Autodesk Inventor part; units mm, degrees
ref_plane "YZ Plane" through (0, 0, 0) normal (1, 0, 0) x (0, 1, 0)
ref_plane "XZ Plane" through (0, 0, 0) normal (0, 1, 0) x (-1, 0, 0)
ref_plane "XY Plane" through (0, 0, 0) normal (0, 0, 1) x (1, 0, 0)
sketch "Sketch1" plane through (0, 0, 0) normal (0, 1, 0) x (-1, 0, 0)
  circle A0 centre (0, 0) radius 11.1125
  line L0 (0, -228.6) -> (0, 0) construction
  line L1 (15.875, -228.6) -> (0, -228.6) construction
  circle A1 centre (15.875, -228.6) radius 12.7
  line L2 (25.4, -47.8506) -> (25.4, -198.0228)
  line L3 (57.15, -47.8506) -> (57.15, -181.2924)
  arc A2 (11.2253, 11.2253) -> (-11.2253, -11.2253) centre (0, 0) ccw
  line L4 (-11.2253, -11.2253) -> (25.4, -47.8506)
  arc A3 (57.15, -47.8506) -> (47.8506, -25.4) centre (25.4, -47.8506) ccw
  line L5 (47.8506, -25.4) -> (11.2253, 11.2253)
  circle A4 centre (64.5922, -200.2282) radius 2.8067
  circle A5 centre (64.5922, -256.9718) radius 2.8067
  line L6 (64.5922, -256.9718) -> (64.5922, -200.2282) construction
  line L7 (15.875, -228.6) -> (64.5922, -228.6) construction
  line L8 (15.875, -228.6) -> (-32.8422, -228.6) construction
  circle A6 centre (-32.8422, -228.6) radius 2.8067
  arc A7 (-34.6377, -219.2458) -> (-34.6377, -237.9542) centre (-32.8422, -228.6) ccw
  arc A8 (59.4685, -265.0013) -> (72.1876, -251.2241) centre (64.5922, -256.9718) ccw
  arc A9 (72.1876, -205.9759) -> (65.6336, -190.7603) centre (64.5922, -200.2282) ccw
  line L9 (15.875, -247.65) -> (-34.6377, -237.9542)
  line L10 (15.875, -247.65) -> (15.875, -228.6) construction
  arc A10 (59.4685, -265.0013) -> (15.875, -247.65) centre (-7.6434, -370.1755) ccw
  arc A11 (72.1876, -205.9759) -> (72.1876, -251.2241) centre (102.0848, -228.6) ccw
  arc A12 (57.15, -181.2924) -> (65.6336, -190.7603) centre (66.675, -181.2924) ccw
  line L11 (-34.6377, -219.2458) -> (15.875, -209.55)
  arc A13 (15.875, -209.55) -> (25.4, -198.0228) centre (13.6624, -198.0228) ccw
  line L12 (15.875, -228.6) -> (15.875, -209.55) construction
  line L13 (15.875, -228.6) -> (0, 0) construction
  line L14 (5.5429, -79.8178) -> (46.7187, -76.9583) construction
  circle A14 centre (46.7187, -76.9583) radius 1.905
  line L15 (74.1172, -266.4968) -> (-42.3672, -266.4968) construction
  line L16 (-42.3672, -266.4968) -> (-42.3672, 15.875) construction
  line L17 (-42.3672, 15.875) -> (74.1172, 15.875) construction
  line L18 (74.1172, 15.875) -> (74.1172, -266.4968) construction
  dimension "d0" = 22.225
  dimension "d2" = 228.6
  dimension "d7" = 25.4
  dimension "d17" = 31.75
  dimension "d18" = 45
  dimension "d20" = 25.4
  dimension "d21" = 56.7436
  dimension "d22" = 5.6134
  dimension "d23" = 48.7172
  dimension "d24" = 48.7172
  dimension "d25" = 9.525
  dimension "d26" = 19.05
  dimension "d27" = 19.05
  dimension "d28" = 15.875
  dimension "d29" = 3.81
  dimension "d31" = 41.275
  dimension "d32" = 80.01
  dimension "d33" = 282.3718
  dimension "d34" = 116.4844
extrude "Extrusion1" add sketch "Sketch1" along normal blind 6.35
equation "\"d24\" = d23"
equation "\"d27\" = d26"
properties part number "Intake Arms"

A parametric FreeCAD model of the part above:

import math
import FreeCAD as App
import Part
import Sketcher

V = App.Vector
Q = App.Units.Quantity

doc = App.newDocument("Part")
params = doc.addObject("Spreadsheet::Sheet", "Params")
for row, (alias, value) in enumerate([
    ("sketch1_diameter", "1 in"),
    ("sketch1_diameter2", "0.15 in"),
    ("sketch1_radius", "1.25 in"),
    ("sketch1_diameter3", "0.221 in"),
    ("sketch1_diameter4", "0.875 in"),
    ("pad1_length", "0.25 in"),
], start=1):
    params.set(f"A{row}", alias)
    params.set(f"B{row}", "=" + value)
    params.setAlias(f"B{row}", alias)

body = doc.addObject("PartDesign::Body", "Body")

sketch1 = doc.addObject("Sketcher::SketchObject", "Sketch")
body.addObject(sketch1)
sketch1.AttachmentSupport = (doc.XZ_Plane, [""])
sketch1.MapMode = "FlatFace"
sketch1.addGeometry([
    Part.LineSegment(V(11.2, -11.2, 0), V(-25.4, -47.9, 0)),
    Part.LineSegment(V(-25.4, -47.9, 0), V(-25.4, -198, 0)),
    Part.ArcOfCircle(Part.Circle(V(-13.7, -198, 0), V(0, 0, 1), 11.7), math.radians(180), math.radians(259)),
    Part.LineSegment(V(-15.9, -209.6, 0), V(34.6, -219.2, 0)),
    Part.ArcOfCircle(Part.Circle(V(32.8, -228.6, 0), V(0, 0, 1), 9.5), math.radians(-79), math.radians(79)),
    Part.LineSegment(V(34.6, -238, 0), V(-15.9, -247.7, 0)),
    Part.ArcOfCircle(Part.Circle(V(7.6, -370.2, 0), V(0, 0, 1), 124.8), math.radians(101), math.radians(123)),
    Part.ArcOfCircle(Part.Circle(V(-64.6, -257, 0), V(0, 0, 1), 9.5), math.radians(143), math.radians(303)),
    Part.ArcOfCircle(Part.Circle(V(-102.1, -228.6, 0), V(0, 0, 1), 37.5), math.radians(-37), math.radians(37)),
    Part.ArcOfCircle(Part.Circle(V(-64.6, -200.2, 0), V(0, 0, 1), 9.5), math.radians(96), math.radians(217)),
    Part.ArcOfCircle(Part.Circle(V(-66.7, -181.3, 0), V(0, 0, 1), 9.5), math.radians(-84), math.radians(0)),
    Part.LineSegment(V(-57.1, -181.3, 0), V(-57.1, -47.9, 0)),
    Part.ArcOfCircle(Part.Circle(V(-25.4, -47.9, 0), V(0, 0, 1), 31.8), math.radians(135), math.radians(180)),
    Part.LineSegment(V(-47.9, -25.4, 0), V(-11.2, 11.2, 0)),
    Part.ArcOfCircle(Part.Circle(V(0, 0, 0), V(0, 0, 1), 15.9), math.radians(-45), math.radians(135)),
    Part.Circle(V(32.8, -228.6, 0), V(0, 0, 1), 2.8),
    Part.Circle(V(-15.9, -228.6, 0), V(0, 0, 1), 12.7),
    Part.Circle(V(-64.6, -257, 0), V(0, 0, 1), 2.8),
    Part.Circle(V(-64.6, -200.2, 0), V(0, 0, 1), 2.8),
    Part.Circle(V(0, 0, 0), V(0, 0, 1), 11.1),
    Part.Circle(V(-46.7, -77, 0), V(0, 0, 1), 1.9),
], False)
sketch1.addConstraint([
    Sketcher.Constraint("Coincident", 0, 2, 1, 1),
    Sketcher.Constraint("Tangent", 1, 2, 2, 1),
    Sketcher.Constraint("Tangent", 2, 2, 3, 1),
    Sketcher.Constraint("Tangent", 3, 2, 4, 2),
    Sketcher.Constraint("Tangent", 4, 1, 5, 1),
    Sketcher.Constraint("Tangent", 5, 2, 6, 1),
    Sketcher.Constraint("Tangent", 6, 2, 7, 2),
    Sketcher.Constraint("Tangent", 7, 1, 8, 1),
    Sketcher.Constraint("Tangent", 8, 2, 9, 2),
    Sketcher.Constraint("Tangent", 9, 1, 10, 1),
    Sketcher.Constraint("Tangent", 10, 2, 11, 1),
    Sketcher.Constraint("Tangent", 11, 2, 12, 2),
    Sketcher.Constraint("Tangent", 12, 1, 13, 1),
    Sketcher.Constraint("Tangent", 13, 2, 14, 2),
    Sketcher.Constraint("Tangent", 14, 1, 0, 1),
    Sketcher.Constraint("Vertical", 1),
    Sketcher.Constraint("Vertical", 11),
    Sketcher.Constraint("Coincident", 14, 3, -1, 1),
    Sketcher.Constraint("Coincident", 19, 3, -1, 1),
    Sketcher.Constraint("Coincident", 15, 3, 4, 3),
    Sketcher.Constraint("Coincident", 17, 3, 7, 3),
    Sketcher.Constraint("Coincident", 18, 3, 9, 3),
    Sketcher.Constraint("Coincident", 0, 2, 12, 3),
    Sketcher.Constraint("Equal", 4, 7),
    Sketcher.Constraint("Equal", 7, 9),
    Sketcher.Constraint("Equal", 9, 10),
    Sketcher.Constraint("Equal", 15, 17),
    Sketcher.Constraint("Equal", 17, 18),
    Sketcher.Constraint("Parallel", 0, 13),
    Sketcher.Constraint("Horizontal", 4, 3, 8, 3),
    Sketcher.Constraint("Horizontal", 15, 3, 16, 3),
    Sketcher.Constraint("Vertical", 7, 3, 9, 3),
    Sketcher.Constraint("Vertical", 16, 3, 2, 2),
    Sketcher.Constraint("Vertical", 3, 2, 4, 1),
    Sketcher.Constraint("Vertical", 2, 2, 5, 2),
    Sketcher.Constraint("Diameter", 16, Q("1 in")),
    Sketcher.Constraint("Diameter", 20, Q("0.15 in")),
    Sketcher.Constraint("Radius", 12, Q("1.25 in")),
    Sketcher.Constraint("Diameter", 15, Q("0.221 in")),
    Sketcher.Constraint("Diameter", 19, Q("0.875 in")),
    Sketcher.Constraint("DistanceY", 4, 3, -1, 1, Q("9 in")),
    Sketcher.Constraint("DistanceX", 12, 3, -1, 1, Q("1 in")),
    Sketcher.Constraint("DistanceY", 12, 1, -1, 1, Q("1 in")),
    Sketcher.Constraint("Radius", 4, Q("0.375 in")),
    Sketcher.Constraint("DistanceY", 16, 3, 2, 2, Q("0.75 in")),
    Sketcher.Constraint("DistanceX", 16, 3, -1, 1, Q("0.625 in")),
    Sketcher.Constraint("DistanceY", 7, 3, 9, 3, Q("2.234 in")),
    Sketcher.Constraint("DistanceX", 16, 3, 4, 3, Q("1.918 in")),
    Sketcher.Constraint("DistanceX", 7, 3, 16, 3, Q("1.918 in")),
    Sketcher.Constraint("Radius", 8, 37.4926),
    Sketcher.Constraint("DistanceX", 20, 3, -1, 1, 46.7187),
    Sketcher.Constraint("DistanceY", 20, 3, -1, 1, 76.9583),
])
sketch1.setExpression("Constraints[35]", "Params.sketch1_diameter")
sketch1.setExpression("Constraints[36]", "Params.sketch1_diameter2")
sketch1.setExpression("Constraints[37]", "Params.sketch1_radius")
sketch1.setExpression("Constraints[38]", "Params.sketch1_diameter3")
sketch1.setExpression("Constraints[39]", "Params.sketch1_diameter4")
pad1 = doc.addObject("PartDesign::Pad", "Pad")
body.addObject(pad1)
pad1.Profile = sketch1
pad1.setExpression("Length", "Params.pad1_length")
pad1.Reversed = True

doc.recompute()
